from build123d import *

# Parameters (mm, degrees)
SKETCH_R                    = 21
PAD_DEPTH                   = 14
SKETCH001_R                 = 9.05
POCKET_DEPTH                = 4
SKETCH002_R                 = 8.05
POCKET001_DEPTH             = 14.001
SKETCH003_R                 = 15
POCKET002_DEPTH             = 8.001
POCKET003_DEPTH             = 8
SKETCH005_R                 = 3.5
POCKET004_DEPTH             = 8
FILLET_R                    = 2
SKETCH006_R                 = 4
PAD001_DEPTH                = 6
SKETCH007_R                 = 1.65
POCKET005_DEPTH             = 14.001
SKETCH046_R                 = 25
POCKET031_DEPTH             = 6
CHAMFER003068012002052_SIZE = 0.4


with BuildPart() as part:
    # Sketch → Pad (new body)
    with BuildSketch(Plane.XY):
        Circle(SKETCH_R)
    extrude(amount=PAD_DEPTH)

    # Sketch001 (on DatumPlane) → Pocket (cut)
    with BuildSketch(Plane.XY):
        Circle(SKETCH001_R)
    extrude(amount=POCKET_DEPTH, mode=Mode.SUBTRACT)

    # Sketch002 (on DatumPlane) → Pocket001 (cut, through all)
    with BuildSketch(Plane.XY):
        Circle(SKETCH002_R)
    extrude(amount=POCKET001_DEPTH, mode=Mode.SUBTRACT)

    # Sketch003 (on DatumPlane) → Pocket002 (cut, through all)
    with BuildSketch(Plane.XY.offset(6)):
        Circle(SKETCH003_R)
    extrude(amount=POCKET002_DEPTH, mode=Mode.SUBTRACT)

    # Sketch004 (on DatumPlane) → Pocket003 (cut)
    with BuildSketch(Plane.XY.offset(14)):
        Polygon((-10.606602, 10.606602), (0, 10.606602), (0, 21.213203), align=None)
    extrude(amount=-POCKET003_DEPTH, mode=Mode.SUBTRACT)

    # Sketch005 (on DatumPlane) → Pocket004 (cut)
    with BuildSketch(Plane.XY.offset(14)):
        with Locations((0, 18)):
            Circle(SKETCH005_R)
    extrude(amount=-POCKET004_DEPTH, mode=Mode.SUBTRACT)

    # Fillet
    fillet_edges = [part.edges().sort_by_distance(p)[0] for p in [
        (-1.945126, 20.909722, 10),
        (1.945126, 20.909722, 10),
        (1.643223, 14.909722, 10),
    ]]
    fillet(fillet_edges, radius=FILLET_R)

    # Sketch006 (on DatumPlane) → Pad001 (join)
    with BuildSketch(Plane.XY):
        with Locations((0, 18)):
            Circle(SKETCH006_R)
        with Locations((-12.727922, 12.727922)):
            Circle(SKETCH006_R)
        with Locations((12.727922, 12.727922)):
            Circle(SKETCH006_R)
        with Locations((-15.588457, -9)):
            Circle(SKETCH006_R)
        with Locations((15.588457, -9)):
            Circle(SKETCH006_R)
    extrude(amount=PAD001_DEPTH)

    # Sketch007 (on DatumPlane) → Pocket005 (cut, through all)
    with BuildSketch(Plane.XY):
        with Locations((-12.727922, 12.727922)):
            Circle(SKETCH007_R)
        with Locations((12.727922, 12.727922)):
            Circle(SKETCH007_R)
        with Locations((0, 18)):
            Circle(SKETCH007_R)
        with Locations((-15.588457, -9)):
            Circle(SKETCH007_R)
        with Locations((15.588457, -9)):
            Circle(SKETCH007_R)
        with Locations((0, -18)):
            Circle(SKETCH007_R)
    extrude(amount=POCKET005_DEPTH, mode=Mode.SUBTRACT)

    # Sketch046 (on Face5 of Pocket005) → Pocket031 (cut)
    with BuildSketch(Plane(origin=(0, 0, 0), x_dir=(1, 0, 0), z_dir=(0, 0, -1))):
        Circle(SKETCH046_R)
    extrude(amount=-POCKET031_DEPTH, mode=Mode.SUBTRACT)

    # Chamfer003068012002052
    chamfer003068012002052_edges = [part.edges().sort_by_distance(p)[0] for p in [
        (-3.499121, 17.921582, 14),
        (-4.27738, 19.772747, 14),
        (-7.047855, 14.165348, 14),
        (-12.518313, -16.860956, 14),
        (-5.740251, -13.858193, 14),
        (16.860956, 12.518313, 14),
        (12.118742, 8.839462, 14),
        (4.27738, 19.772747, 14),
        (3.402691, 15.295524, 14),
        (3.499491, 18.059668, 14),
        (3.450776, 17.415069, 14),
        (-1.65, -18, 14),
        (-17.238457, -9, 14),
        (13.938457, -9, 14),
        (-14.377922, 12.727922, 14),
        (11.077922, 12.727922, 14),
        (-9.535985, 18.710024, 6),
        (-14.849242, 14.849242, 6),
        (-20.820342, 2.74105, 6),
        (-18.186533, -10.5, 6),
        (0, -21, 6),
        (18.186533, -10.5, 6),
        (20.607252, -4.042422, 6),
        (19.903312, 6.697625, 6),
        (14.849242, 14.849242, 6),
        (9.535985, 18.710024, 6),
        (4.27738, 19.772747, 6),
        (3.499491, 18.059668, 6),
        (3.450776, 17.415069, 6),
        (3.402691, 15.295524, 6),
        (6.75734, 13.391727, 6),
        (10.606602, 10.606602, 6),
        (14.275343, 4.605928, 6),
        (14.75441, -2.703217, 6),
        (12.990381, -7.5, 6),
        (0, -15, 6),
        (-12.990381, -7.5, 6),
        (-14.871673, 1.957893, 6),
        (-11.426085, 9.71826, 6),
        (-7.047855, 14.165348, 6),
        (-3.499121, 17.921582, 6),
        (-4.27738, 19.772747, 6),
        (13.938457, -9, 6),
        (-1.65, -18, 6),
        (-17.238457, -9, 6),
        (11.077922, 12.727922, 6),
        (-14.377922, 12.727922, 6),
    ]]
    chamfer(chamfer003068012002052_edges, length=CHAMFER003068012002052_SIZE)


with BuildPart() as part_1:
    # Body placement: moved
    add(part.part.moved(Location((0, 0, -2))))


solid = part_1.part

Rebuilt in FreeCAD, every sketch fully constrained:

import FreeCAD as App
import Part
import Sketcher


def edges_at(feature, points):
    """Names of the edges that pass closest to the given points."""
    edges = feature.Shape.Edges
    near = lambda p: min(range(len(edges)), key=lambda i: edges[i].distToShape(Part.Vertex(*p))[0])
    return sorted({f"Edge{near(p) + 1}" for p in points})

doc = App.newDocument("Part")
body = doc.addObject("PartDesign::Body", "Body")

# Sketch on XY plane
sketch1 = body.newObject("Sketcher::SketchObject", "Sketch")
sketch1.AttachmentSupport = (doc.getObject("XY_Plane"), [""])
sketch1.MapMode = "FlatFace"
sketch1.addGeometry(Part.Circle(App.Vector(0, 0, 0), App.Vector(0, 0, 1), 21), False)
sketch1.addConstraint(Sketcher.Constraint("Coincident", 0, 3, -1, 1))
sketch1.addConstraint(Sketcher.Constraint("Diameter", 0, 42.0))
pad1 = body.newObject("PartDesign::Pad", "Pad")
pad1.Profile = sketch1
pad1.Length = 14

# Sketch on XY plane
sketch2 = body.newObject("Sketcher::SketchObject", "Sketch001")
sketch2.AttachmentSupport = (doc.getObject("XY_Plane"), [""])
sketch2.MapMode = "FlatFace"
sketch2.addGeometry(Part.Circle(App.Vector(0, 0, 0), App.Vector(0, 0, 1), 9.05), False)
sketch2.addConstraint(Sketcher.Constraint("Coincident", 0, 3, -1, 1))
sketch2.addConstraint(Sketcher.Constraint("Diameter", 0, 18.1))
pocket1 = body.newObject("PartDesign::Pocket", "Pocket")
pocket1.Profile = sketch2
pocket1.Length = 4
pocket1.Reversed = True

# Sketch on XY plane
sketch3 = body.newObject("Sketcher::SketchObject", "Sketch002")
sketch3.AttachmentSupport = (doc.getObject("XY_Plane"), [""])
sketch3.MapMode = "FlatFace"
sketch3.addGeometry(Part.Circle(App.Vector(0, 0, 0), App.Vector(0, 0, 1), 8.05), False)
sketch3.addConstraint(Sketcher.Constraint("Coincident", 0, 3, -1, 1))
sketch3.addConstraint(Sketcher.Constraint("Diameter", 0, 16.1))
pocket2 = body.newObject("PartDesign::Pocket", "Pocket001")
pocket2.Profile = sketch3
pocket2.Type = "ThroughAll"
pocket2.Reversed = True

# Sketch on XY plane
sketch4 = body.newObject("Sketcher::SketchObject", "Sketch003")
sketch4.AttachmentSupport = (doc.getObject("XY_Plane"), [""])
sketch4.MapMode = "FlatFace"
sketch4.AttachmentOffset = App.Placement(App.Vector(0, 0, 6), App.Rotation())
sketch4.addGeometry(Part.Circle(App.Vector(0, 0, 0), App.Vector(0, 0, 1), 15), False)
sketch4.addConstraint(Sketcher.Constraint("Coincident", 0, 3, -1, 1))
sketch4.addConstraint(Sketcher.Constraint("Diameter", 0, 30.0))
pocket3 = body.newObject("PartDesign::Pocket", "Pocket002")
pocket3.Profile = sketch4
pocket3.Type = "ThroughAll"
pocket3.Reversed = True

# Sketch on XY plane
sketch5 = body.newObject("Sketcher::SketchObject", "Sketch004")
sketch5.AttachmentSupport = (doc.getObject("XY_Plane"), [""])
sketch5.MapMode = "FlatFace"
sketch5.AttachmentOffset = App.Placement(App.Vector(0, 0, 14), App.Rotation())
sketch5.addGeometry(Part.LineSegment(App.Vector(-10.606602, 10.606602, 0), App.Vector(0, 10.606602, 0)), False)
sketch5.addGeometry(Part.LineSegment(App.Vector(0, 10.606602, 0), App.Vector(0, 21.213203, 0)), False)
sketch5.addGeometry(Part.LineSegment(App.Vector(0, 21.213203, 0), App.Vector(-10.606602, 10.606602, 0)), False)
sketch5.addConstraint(Sketcher.Constraint("Coincident", 0, 2, 1, 1))
sketch5.addConstraint(Sketcher.Constraint("Coincident", 1, 2, 2, 1))
sketch5.addConstraint(Sketcher.Constraint("Coincident", 2, 2, 0, 1))
sketch5.addConstraint(Sketcher.Constraint("Horizontal", 0))
sketch5.addConstraint(Sketcher.Constraint("Vertical", 1))
sketch5.addConstraint(Sketcher.Constraint("PointOnObject", 0, 2, -2))
sketch5.addConstraint(Sketcher.Constraint("Equal", 0, 1))
sketch5.addConstraint(Sketcher.Constraint("Distance", 2, 15.0))
sketch5.addConstraint(Sketcher.Constraint("DistanceY", -1, 1, 0, 2, 10.606602))
pocket4 = body.newObject("PartDesign::Pocket", "Pocket003")
pocket4.Profile = sketch5
pocket4.Length = 8

# Sketch on XY plane
sketch6 = body.newObject("Sketcher::SketchObject", "Sketch005")
sketch6.AttachmentSupport = (doc.getObject("XY_Plane"), [""])
sketch6.MapMode = "FlatFace"
sketch6.AttachmentOffset = App.Placement(App.Vector(0, 0, 14), App.Rotation())
sketch6.addGeometry(Part.Circle(App.Vector(0, 18, 0), App.Vector(0, 0, 1), 3.5), False)
sketch6.addConstraint(Sketcher.Constraint("PointOnObject", 0, 3, -2))
sketch6.addConstraint(Sketcher.Constraint("Diameter", 0, 7.0))
sketch6.addConstraint(Sketcher.Constraint("DistanceY", -1, 1, 0, 3, 18.0))
pocket5 = body.newObject("PartDesign::Pocket", "Pocket004")
pocket5.Profile = sketch6
pocket5.Length = 8
doc.recompute()

fillet = body.newObject("PartDesign::Fillet", "Fillet")
fillet.Base = (pocket5, edges_at(pocket5, [(-1.945, 20.91, 10), (1.945, 20.91, 10), (1.643, 14.91, 10)]))
fillet.Radius = 2

# Sketch on XY plane
sketch7 = body.newObject("Sketcher::SketchObject", "Sketch006")
sketch7.AttachmentSupport = (doc.getObject("XY_Plane"), [""])
sketch7.MapMode = "FlatFace"
sketch7.addGeometry(Part.Circle(App.Vector(0, 18, 0), App.Vector(0, 0, 1), 4), False)
sketch7.addGeometry(Part.Circle(App.Vector(-12.727922, 12.727922, 0), App.Vector(0, 0, 1), 4), False)
sketch7.addGeometry(Part.Circle(App.Vector(12.727922, 12.727922, 0), App.Vector(0, 0, 1), 4), False)
sketch7.addGeometry(Part.Circle(App.Vector(-15.588457, -9, 0), App.Vector(0, 0, 1), 4), False)
sketch7.addGeometry(Part.Circle(App.Vector(15.588457, -9, 0), App.Vector(0, 0, 1), 4), False)
sketch7.addConstraint(Sketcher.Constraint("Equal", 0, 1))
sketch7.addConstraint(Sketcher.Constraint("Equal", 1, 2))
sketch7.addConstraint(Sketcher.Constraint("Equal", 2, 3))
sketch7.addConstraint(Sketcher.Constraint("Equal", 3, 4))
sketch7.addConstraint(Sketcher.Constraint("Symmetric", 1, 3, 2, 3, -2))
sketch7.addConstraint(Sketcher.Constraint("Symmetric", 3, 3, 4, 3, -2))
sketch7.addConstraint(Sketcher.Constraint("PointOnObject", 0, 3, -2))
sketch7.addConstraint(Sketcher.Constraint("Diameter", 0, 8.0))
sketch7.addConstraint(Sketcher.Constraint("DistanceY", -1, 1, 0, 3, 18.0))
sketch7.addConstraint(Sketcher.Constraint("DistanceY", 3, 3, -1, 1, 9.0))
sketch7.addConstraint(Sketcher.Constraint("DistanceY", 1, 3, 0, 3, 5.272078))
sketch7.addConstraint(Sketcher.Constraint("DistanceX", 3, 3, 2, 3, 28.316379))
sketch7.addConstraint(Sketcher.Constraint("DistanceX", 1, 3, -1, 1, 12.727922))
pad2 = body.newObject("PartDesign::Pad", "Pad001")
pad2.Profile = sketch7
pad2.Length = 6

# Sketch on XY plane
sketch8 = body.newObject("Sketcher::SketchObject", "Sketch007")
sketch8.AttachmentSupport = (doc.getObject("XY_Plane"), [""])
sketch8.MapMode = "FlatFace"
sketch8.addGeometry(Part.Circle(App.Vector(-12.727922, 12.727922, 0), App.Vector(0, 0, 1), 1.65), False)
sketch8.addGeometry(Part.Circle(App.Vector(12.727922, 12.727922, 0), App.Vector(0, 0, 1), 1.65), False)
sketch8.addGeometry(Part.Circle(App.Vector(0, 18, 0), App.Vector(0, 0, 1), 1.65), False)
sketch8.addGeometry(Part.Circle(App.Vector(-15.588457, -9, 0), App.Vector(0, 0, 1), 1.65), False)
sketch8.addGeometry(Part.Circle(App.Vector(15.588457, -9, 0), App.Vector(0, 0, 1), 1.65), False)
sketch8.addGeometry(Part.Circle(App.Vector(0, -18, 0), App.Vector(0, 0, 1), 1.65), False)
sketch8.addConstraint(Sketcher.Constraint("Equal", 0, 1))
sketch8.addConstraint(Sketcher.Constraint("Equal", 1, 2))
sketch8.addConstraint(Sketcher.Constraint("Equal", 2, 3))
sketch8.addConstraint(Sketcher.Constraint("Equal", 3, 4))
sketch8.addConstraint(Sketcher.Constraint("Equal", 4, 5))
sketch8.addConstraint(Sketcher.Constraint("Symmetric", 2, 3, 5, 3, -1, 1))
sketch8.addConstraint(Sketcher.Constraint("Symmetric", 0, 3, 1, 3, -2))
sketch8.addConstraint(Sketcher.Constraint("Symmetric", 3, 3, 4, 3, -2))
sketch8.addConstraint(Sketcher.Constraint("PointOnObject", 2, 3, -2))
sketch8.addConstraint(Sketcher.Constraint("Diameter", 0, 3.3))
sketch8.addConstraint(Sketcher.Constraint("DistanceY", -1, 1, 2, 3, 18.0))
sketch8.addConstraint(Sketcher.Constraint("DistanceY", 3, 3, -1, 1, 9.0))
sketch8.addConstraint(Sketcher.Constraint("DistanceY", 0, 3, 2, 3, 5.272078))
sketch8.addConstraint(Sketcher.Constraint("DistanceX", 3, 3, 1, 3, 28.316379))
sketch8.addConstraint(Sketcher.Constraint("DistanceX", 0, 3, -1, 1, 12.727922))
pocket6 = body.newObject("PartDesign::Pocket", "Pocket005")
pocket6.Profile = sketch8
pocket6.Type = "ThroughAll"
pocket6.Reversed = True

# Sketch on XY plane
sketch9 = body.newObject("Sketcher::SketchObject", "Sketch008")
sketch9.AttachmentSupport = (doc.getObject("XY_Plane"), [""])
sketch9.MapMode = "FlatFace"
sketch9.addGeometry(Part.Circle(App.Vector(0, 0, 0), App.Vector(0, 0, 1), 25), False)
sketch9.addConstraint(Sketcher.Constraint("Coincident", 0, 3, -1, 1))
sketch9.addConstraint(Sketcher.Constraint("Diameter", 0, 50.0))
pocket7 = body.newObject("PartDesign::Pocket", "Pocket006")
pocket7.Profile = sketch9
pocket7.Length = 6
pocket7.Reversed = True
doc.recompute()

chamfer = body.newObject("PartDesign::Chamfer", "Chamfer")
chamfer.Base = (pocket7, edges_at(pocket7, [
    (-3.499, 17.922, 14),
    (-4.277, 19.773, 14),
    (-7.048, 14.165, 14),
    (0, -21, 14),
    (3.529, -14.579, 14),
    (0, -21, 14),
    (3.529, -14.579, 14),
    (4.277, 19.773, 14),
    (3.403, 15.296, 14),
    (3.46, 17.474, 14),
    (3.46, 17.474, 14),
    (-1.65, -18, 14),
    (-17.238, -9, 14),
    (13.938, -9, 14),
    (-14.378, 12.728, 14),
    (11.078, 12.728, 14),
    (0, -21, 6),
    (0, -21, 6),
    (0, -21, 6),
    (0, -21, 6),
    (0, -21, 6),
    (0, -21, 6),
    (0, -21, 6),
    (0, -21, 6),
    (0, -21, 6),
    (0, -21, 6),
    (4.277, 19.773, 6),
    (3.46, 17.474, 6),
    (3.46, 17.474, 6),
    (3.403, 15.296, 6),
    (3.529, -14.579, 6),
    (3.529, -14.579, 6),
    (3.529, -14.579, 6),
    (3.529, -14.579, 6),
    (3.529, -14.579, 6),
    (3.529, -14.579, 6),
    (3.529, -14.579, 6),
    (3.529, -14.579, 6),
    (3.529, -14.579, 6),
    (-7.048, 14.165, 6),
    (-3.499, 17.922, 6),
    (-4.277, 19.773, 6),
    (13.938, -9, 6),
    (-1.65, -18, 6),
    (-17.238, -9, 6),
    (11.078, 12.728, 6),
    (-14.378, 12.728, 6),
]))
chamfer.Size = 0.4
body2 = doc.addObject("PartDesign::Body", "Body001")
doc.recompute()

body.Placement = App.Placement(App.Vector(0, 0, -2), App.Rotation(App.Vector(0, 0, 1), 0))
boolean = body2.newObject("PartDesign::Boolean", "Boolean")
boolean.Type = "Fuse"
boolean.addObjects([body])

doc.recompute()
